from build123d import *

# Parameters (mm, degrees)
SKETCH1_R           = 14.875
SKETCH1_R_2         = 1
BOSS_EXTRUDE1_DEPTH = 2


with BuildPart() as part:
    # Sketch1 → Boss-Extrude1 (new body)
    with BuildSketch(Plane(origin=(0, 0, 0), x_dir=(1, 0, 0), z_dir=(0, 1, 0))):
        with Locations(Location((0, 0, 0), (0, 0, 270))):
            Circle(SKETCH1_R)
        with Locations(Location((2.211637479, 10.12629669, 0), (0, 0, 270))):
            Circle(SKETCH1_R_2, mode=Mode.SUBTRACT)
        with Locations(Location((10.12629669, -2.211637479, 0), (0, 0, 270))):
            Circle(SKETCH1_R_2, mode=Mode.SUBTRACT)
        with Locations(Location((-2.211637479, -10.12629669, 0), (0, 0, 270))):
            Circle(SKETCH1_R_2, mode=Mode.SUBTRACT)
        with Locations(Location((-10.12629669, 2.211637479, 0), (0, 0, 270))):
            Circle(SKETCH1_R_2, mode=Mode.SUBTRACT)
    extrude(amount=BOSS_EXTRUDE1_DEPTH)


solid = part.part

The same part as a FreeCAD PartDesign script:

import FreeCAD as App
import Part
import Sketcher
from FreeCAD import Vector
Q = App.Units.Quantity

doc = App.newDocument("Part")
params = doc.addObject("Spreadsheet::Sheet", "Params")
for row, (alias, value) in enumerate([
    ("sketch1_diameter", "2 mm"),
    ("sketch1_diameter2", "29.75 mm"),
    ("pad1_length", "2 mm"),
], start=1):
    params.set(f"A{row}", alias)
    params.set(f"B{row}", "=" + value)
    params.setAlias(f"B{row}", alias)

body = doc.addObject("PartDesign::Body", "Body")

# Sketch on XZ plane
sketch1 = body.newObject("Sketcher::SketchObject", "Sketch")
sketch1.AttachmentSupport = (doc.getObject("XZ_Plane"), [""])
sketch1.MapMode = "FlatFace"
sketch1.addGeometry([
    Part.Circle(Vector(0, 0, 0), Vector(0, 0, 1), 14.9),  # 0
    Part.Circle(Vector(-10.1, -2.2, 0), Vector(0, 0, 1), 1),  # 1
    Part.Circle(Vector(-2.2, 10.1, 0), Vector(0, 0, 1), 1),  # 2
    Part.Circle(Vector(2.2, -10.1, 0), Vector(0, 0, 1), 1),  # 3
    Part.Circle(Vector(10.1, 2.2, 0), Vector(0, 0, 1), 1),  # 4
], False)
sketch1.addConstraint([
    Sketcher.Constraint("Coincident", 0, 3, -1, 1),
    Sketcher.Constraint("Equal", 1, 2),
    Sketcher.Constraint("Equal", 2, 3),
    Sketcher.Constraint("Equal", 3, 4),
    Sketcher.Constraint("Symmetric", 2, 3, 3, 3, -1, 1),
    Sketcher.Constraint("Symmetric", 1, 3, 4, 3, -1, 1),
    Sketcher.Constraint("Diameter", 1, Q("2 mm")),
    Sketcher.Constraint("Diameter", 0, Q("29.75 mm")),
    Sketcher.Constraint("DistanceX", 1, 3, 2, 3, Q("7.914659 mm")),
    Sketcher.Constraint("DistanceY", 3, 3, 1, 3, Q("7.914659 mm")),
    Sketcher.Constraint("DistanceX", 1, 3, -1, 1, Q("10.126297 mm")),
    Sketcher.Constraint("DistanceY", 1, 3, -1, 1, Q("2.211637 mm")),
])
sketch1.setExpression("Constraints[6]", "Params.sketch1_diameter")
sketch1.setExpression("Constraints[7]", "Params.sketch1_diameter2")
pad1 = body.newObject("PartDesign::Pad", "Pad")
pad1.Profile = sketch1
pad1.setExpression("Length", "Params.pad1_length")
pad1.Reversed = True

doc.recompute()
